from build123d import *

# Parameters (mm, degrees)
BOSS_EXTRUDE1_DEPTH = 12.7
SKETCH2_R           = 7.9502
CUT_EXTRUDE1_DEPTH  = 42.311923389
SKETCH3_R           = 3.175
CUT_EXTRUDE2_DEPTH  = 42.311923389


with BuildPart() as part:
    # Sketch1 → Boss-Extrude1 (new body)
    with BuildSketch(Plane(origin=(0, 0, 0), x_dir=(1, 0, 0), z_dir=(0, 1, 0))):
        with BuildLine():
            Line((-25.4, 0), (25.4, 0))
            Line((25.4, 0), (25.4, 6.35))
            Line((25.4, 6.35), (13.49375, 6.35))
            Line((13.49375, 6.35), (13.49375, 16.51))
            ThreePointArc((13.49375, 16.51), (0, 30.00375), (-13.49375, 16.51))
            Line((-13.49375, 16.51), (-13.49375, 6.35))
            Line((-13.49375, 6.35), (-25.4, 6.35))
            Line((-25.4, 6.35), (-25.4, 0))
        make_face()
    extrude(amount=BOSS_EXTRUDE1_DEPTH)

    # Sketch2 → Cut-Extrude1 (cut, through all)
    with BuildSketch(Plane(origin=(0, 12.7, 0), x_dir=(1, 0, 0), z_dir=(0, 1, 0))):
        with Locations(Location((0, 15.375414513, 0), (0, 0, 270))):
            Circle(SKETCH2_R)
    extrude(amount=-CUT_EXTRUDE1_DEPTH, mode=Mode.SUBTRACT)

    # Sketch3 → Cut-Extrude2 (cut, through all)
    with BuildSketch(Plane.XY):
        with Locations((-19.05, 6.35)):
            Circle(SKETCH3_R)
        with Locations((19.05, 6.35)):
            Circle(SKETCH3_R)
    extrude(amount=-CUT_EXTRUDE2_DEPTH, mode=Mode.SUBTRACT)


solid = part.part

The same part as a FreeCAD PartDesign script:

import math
import FreeCAD as App
import Part
import Sketcher

V = App.Vector
Q = App.Units.Quantity

doc = App.newDocument("Part")
body = doc.addObject("PartDesign::Body", "Body")

# Sketch on XZ plane
sketch1 = body.newObject("Sketcher::SketchObject", "Sketch")
sketch1.AttachmentSupport = (doc.getObject("XZ_Plane"), [""])
sketch1.MapMode = "FlatFace"
sketch1.addGeometry([
    Part.LineSegment(V(-25, 0, 0), V(25, 0, 0)),  # 0
    Part.LineSegment(V(25, 0, 0), V(25, -6, 0)),  # 1
    Part.LineSegment(V(25, -6, 0), V(13, -6, 0)),  # 2
    Part.LineSegment(V(13, -6, 0), V(13, -17, 0)),  # 3
    Part.ArcOfCircle(Part.Circle(V(0, -17, 0), V(0, 0, 1), 13), math.radians(180), math.radians(360)),  # 4
    Part.LineSegment(V(-13, -17, 0), V(-13, -6, 0)),  # 5
    Part.LineSegment(V(-13, -6, 0), V(-25, -6, 0)),  # 6
    Part.LineSegment(V(-25, -6, 0), V(-25, 0, 0)),  # 7
], False)
sketch1.addConstraint([
    Sketcher.Constraint("Coincident", 0, 2, 1, 1),
    Sketcher.Constraint("Coincident", 1, 2, 2, 1),
    Sketcher.Constraint("Coincident", 2, 2, 3, 1),
    Sketcher.Constraint("Tangent", 3, 2, 4, 2),
    Sketcher.Constraint("Tangent", 4, 1, 5, 1),
    Sketcher.Constraint("Coincident", 5, 2, 6, 1),
    Sketcher.Constraint("Coincident", 6, 2, 7, 1),
    Sketcher.Constraint("Coincident", 7, 2, 0, 1),
    Sketcher.Constraint("Horizontal", 0),
    Sketcher.Constraint("Vertical", 1),
    Sketcher.Constraint("Horizontal", 2),
    Sketcher.Constraint("Vertical", 3),
    Sketcher.Constraint("Vertical", 5),
    Sketcher.Constraint("Horizontal", 6),
    Sketcher.Constraint("Vertical", 7),
    Sketcher.Constraint("Symmetric", 0, 2, 7, 2, -1, 1),
    Sketcher.Constraint("Symmetric", 2, 2, 5, 2, -2),
    Sketcher.Constraint("DistanceX", 0, 1, 0, 2, Q("2 in")),
    Sketcher.Constraint("DistanceY", 3, 2, 3, 1, Q("0.4 in")),
    Sketcher.Constraint("Radius", 4, Q("0.53125 in")),
    Sketcher.Constraint("DistanceY", 1, 2, 1, 1, Q("0.25 in")),
])
pad1 = body.newObject("PartDesign::Pad", "Pad")
pad1.Profile = sketch1
pad1.Length = Q("0.5 in")
pad1.Reversed = True

# Sketch on XZ plane
sketch2 = body.newObject("Sketcher::SketchObject", "Sketch001")
sketch2.AttachmentSupport = (doc.getObject("XZ_Plane"), [""])
sketch2.MapMode = "FlatFace"
sketch2.AttachmentOffset = App.Placement(V(0, 0, -0.5 * 25.4), App.Rotation())
sketch2.addGeometry(Part.Circle(V(0, -15, 0), V(0, 0, 1), 8), False)
sketch2.addConstraint([
    Sketcher.Constraint("PointOnObject", 0, 3, -2),
    Sketcher.Constraint("Diameter", 0, Q("0.626 in")),
    Sketcher.Constraint("DistanceY", 0, 3, -1, 1, Q("15.375415 mm")),
])
pocket1 = body.newObject("PartDesign::Pocket", "Pocket")
pocket1.Profile = sketch2
pocket1.Type = "ThroughAll"
pocket1.Reversed = True

# Sketch on XY plane
sketch3 = body.newObject("Sketcher::SketchObject", "Sketch002")
sketch3.AttachmentSupport = (doc.getObject("XY_Plane"), [""])
sketch3.MapMode = "FlatFace"
sketch3.addGeometry([
    Part.Circle(V(-19.1, 6.3, 0), V(0, 0, 1), 3.2),
    Part.Circle(V(19.1, 6.3, 0), V(0, 0, 1), 3.2),
], False)
sketch3.addConstraint([
    Sketcher.Constraint("Equal", 0, 1),
    Sketcher.Constraint("Symmetric", 0, 3, 1, 3, -2),
    Sketcher.Constraint("Diameter", 0, Q("0.25 in")),
    Sketcher.Constraint("DistanceX", 0, 3, 1, 3, Q("1.5 in")),
    Sketcher.Constraint("DistanceY", -1, 1, 0, 3, Q("0.25 in")),
])
pocket2 = body.newObject("PartDesign::Pocket", "Pocket001")
pocket2.Profile = sketch3
pocket2.Type = "ThroughAll"

doc.recompute()
